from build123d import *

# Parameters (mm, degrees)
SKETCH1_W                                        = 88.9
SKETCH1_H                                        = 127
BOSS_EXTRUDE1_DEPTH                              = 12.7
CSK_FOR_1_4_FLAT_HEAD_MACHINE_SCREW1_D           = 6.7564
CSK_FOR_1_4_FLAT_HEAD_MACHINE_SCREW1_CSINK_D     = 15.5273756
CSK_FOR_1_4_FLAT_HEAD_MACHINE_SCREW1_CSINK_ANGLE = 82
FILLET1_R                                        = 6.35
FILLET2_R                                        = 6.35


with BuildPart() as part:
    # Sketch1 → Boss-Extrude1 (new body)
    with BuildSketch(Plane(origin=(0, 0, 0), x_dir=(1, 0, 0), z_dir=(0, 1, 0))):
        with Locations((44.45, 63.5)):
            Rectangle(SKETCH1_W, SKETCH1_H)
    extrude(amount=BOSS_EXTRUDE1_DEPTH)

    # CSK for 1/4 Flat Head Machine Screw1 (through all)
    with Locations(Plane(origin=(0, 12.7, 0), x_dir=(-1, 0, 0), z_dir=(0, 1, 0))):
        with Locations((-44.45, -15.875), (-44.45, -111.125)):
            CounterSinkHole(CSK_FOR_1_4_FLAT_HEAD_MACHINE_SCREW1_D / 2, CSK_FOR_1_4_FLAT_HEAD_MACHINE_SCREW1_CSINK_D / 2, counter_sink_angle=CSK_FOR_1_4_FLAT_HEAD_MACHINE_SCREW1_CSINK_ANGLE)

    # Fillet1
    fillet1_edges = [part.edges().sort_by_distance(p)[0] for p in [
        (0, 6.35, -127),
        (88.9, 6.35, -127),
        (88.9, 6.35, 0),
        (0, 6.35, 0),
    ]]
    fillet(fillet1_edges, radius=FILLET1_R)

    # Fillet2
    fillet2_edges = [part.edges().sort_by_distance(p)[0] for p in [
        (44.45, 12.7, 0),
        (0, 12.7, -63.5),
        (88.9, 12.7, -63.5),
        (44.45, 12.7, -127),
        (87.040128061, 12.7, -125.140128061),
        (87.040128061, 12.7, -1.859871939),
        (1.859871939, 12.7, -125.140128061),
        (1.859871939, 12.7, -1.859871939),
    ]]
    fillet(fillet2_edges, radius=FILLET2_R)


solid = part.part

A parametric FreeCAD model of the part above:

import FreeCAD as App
import Part
import Sketcher
from FreeCAD import Vector
Q = App.Units.Quantity


def edges_at(feature, points):
    """Names of the edges that pass closest to the given points."""
    edges = feature.Shape.Edges
    near = lambda p: min(range(len(edges)), key=lambda i: edges[i].distToShape(Part.Vertex(*p))[0])
    return sorted({f"Edge{near(p) + 1}" for p in points})


def add_polygon(sketch, points):
    """Adds a closed chain of lines whose ends are joined by coincident constraints."""
    first, n = sketch.GeometryCount, len(points)
    for a, b in zip(points, points[1:] + points[:1]):
        sketch.addGeometry(Part.LineSegment(App.Vector(*a, 0), App.Vector(*b, 0)), False)
    for i in range(n):
        sketch.addConstraint(Sketcher.Constraint("Coincident", first + i, 2, first + (i + 1) % n, 1))

doc = App.newDocument("Part")
body = doc.addObject("PartDesign::Body", "Body")

sketch1 = body.newObject("Sketcher::SketchObject", "Sketch")
sketch1.AttachmentSupport = (doc.getObject("XZ_Plane"), [""])
sketch1.MapMode = "FlatFace"
add_polygon(sketch1, [(0, -127), (0, 0), (88.9, 0), (88.9, -127)])
sketch1.addConstraint([
    Sketcher.Constraint("Vertical", 0),
    Sketcher.Constraint("Horizontal", 1),
    Sketcher.Constraint("Vertical", 2),
    Sketcher.Constraint("Horizontal", 3),
    Sketcher.Constraint("Coincident", 0, 2, -1, 1),
    Sketcher.Constraint("DistanceY", 0, 1, 0, 2, Q("5 in")),
    Sketcher.Constraint("DistanceX", 1, 1, 1, 2, Q("3.5 in")),
])
pad1 = body.newObject("PartDesign::Pad", "Pad")
pad1.Profile = sketch1
pad1.Length = Q("0.5 in")
pad1.Reversed = True

sketch2 = body.newObject("Sketcher::SketchObject", "Sketch001")
sketch2.AttachmentSupport = (doc.getObject("XZ_Plane"), [""])
sketch2.MapMode = "FlatFace"
sketch2.AttachmentOffset = App.Placement(Vector(0, 0, -0.5 * 25.4), App.Rotation())
sketch2.addGeometry([
    Part.Circle(Vector(44.45, -15.875, 0), Vector(0, 0, 1), 3.3782),
    Part.Circle(Vector(44.45, -111.125, 0), Vector(0, 0, 1), 3.3782),
], False)
sketch2.addConstraint([
    Sketcher.Constraint("Equal", 0, 1),
    Sketcher.Constraint("Vertical", 0, 3, 1, 3),
    Sketcher.Constraint("Diameter", 0, Q("0.266 in")),
    Sketcher.Constraint("DistanceX", -1, 1, 0, 3, Q("1.75 in")),
    Sketcher.Constraint("DistanceY", 1, 3, 0, 3, Q("3.75 in")),
    Sketcher.Constraint("DistanceY", 0, 3, -1, 1, Q("0.625 in")),
])
doc.recompute()
hole = body.newObject("PartDesign::Hole", "Hole")
hole.Profile = sketch2
hole.ThreadType = "None"
hole.Diameter = Q("0.266 in")
hole.DepthType = "ThroughAll"
hole.HoleCutType = "Countersink"
hole.HoleCutDiameter = 15.527376
hole.HoleCutCountersinkAngle = 82
hole.Reversed = True
doc.recompute()

fillet = body.newObject("PartDesign::Fillet", "Fillet")
fillet.Base = (hole, edges_at(hole, [
    (0, 6.35, -127),
    (88.9, 6.35, -127),
    (88.9, 6.35, 0),
    (0, 6.35, 0),
]))
fillet.Radius = Q("0.25 in")
doc.recompute()

fillet2 = body.newObject("PartDesign::Fillet", "Fillet001")
fillet2.Base = (fillet, edges_at(fillet, [
    (44.45, 12.7, 0),
    (0, 12.7, -63.5),
    (88.9, 12.7, -63.5),
    (44.45, 12.7, -127),
    (87.04, 12.7, -125.14),
    (87.04, 12.7, -1.86),
    (1.86, 12.7, -125.14),
    (1.86, 12.7, -1.86),
]))
fillet2.Radius = Q("0.25 in")

doc.recompute()
